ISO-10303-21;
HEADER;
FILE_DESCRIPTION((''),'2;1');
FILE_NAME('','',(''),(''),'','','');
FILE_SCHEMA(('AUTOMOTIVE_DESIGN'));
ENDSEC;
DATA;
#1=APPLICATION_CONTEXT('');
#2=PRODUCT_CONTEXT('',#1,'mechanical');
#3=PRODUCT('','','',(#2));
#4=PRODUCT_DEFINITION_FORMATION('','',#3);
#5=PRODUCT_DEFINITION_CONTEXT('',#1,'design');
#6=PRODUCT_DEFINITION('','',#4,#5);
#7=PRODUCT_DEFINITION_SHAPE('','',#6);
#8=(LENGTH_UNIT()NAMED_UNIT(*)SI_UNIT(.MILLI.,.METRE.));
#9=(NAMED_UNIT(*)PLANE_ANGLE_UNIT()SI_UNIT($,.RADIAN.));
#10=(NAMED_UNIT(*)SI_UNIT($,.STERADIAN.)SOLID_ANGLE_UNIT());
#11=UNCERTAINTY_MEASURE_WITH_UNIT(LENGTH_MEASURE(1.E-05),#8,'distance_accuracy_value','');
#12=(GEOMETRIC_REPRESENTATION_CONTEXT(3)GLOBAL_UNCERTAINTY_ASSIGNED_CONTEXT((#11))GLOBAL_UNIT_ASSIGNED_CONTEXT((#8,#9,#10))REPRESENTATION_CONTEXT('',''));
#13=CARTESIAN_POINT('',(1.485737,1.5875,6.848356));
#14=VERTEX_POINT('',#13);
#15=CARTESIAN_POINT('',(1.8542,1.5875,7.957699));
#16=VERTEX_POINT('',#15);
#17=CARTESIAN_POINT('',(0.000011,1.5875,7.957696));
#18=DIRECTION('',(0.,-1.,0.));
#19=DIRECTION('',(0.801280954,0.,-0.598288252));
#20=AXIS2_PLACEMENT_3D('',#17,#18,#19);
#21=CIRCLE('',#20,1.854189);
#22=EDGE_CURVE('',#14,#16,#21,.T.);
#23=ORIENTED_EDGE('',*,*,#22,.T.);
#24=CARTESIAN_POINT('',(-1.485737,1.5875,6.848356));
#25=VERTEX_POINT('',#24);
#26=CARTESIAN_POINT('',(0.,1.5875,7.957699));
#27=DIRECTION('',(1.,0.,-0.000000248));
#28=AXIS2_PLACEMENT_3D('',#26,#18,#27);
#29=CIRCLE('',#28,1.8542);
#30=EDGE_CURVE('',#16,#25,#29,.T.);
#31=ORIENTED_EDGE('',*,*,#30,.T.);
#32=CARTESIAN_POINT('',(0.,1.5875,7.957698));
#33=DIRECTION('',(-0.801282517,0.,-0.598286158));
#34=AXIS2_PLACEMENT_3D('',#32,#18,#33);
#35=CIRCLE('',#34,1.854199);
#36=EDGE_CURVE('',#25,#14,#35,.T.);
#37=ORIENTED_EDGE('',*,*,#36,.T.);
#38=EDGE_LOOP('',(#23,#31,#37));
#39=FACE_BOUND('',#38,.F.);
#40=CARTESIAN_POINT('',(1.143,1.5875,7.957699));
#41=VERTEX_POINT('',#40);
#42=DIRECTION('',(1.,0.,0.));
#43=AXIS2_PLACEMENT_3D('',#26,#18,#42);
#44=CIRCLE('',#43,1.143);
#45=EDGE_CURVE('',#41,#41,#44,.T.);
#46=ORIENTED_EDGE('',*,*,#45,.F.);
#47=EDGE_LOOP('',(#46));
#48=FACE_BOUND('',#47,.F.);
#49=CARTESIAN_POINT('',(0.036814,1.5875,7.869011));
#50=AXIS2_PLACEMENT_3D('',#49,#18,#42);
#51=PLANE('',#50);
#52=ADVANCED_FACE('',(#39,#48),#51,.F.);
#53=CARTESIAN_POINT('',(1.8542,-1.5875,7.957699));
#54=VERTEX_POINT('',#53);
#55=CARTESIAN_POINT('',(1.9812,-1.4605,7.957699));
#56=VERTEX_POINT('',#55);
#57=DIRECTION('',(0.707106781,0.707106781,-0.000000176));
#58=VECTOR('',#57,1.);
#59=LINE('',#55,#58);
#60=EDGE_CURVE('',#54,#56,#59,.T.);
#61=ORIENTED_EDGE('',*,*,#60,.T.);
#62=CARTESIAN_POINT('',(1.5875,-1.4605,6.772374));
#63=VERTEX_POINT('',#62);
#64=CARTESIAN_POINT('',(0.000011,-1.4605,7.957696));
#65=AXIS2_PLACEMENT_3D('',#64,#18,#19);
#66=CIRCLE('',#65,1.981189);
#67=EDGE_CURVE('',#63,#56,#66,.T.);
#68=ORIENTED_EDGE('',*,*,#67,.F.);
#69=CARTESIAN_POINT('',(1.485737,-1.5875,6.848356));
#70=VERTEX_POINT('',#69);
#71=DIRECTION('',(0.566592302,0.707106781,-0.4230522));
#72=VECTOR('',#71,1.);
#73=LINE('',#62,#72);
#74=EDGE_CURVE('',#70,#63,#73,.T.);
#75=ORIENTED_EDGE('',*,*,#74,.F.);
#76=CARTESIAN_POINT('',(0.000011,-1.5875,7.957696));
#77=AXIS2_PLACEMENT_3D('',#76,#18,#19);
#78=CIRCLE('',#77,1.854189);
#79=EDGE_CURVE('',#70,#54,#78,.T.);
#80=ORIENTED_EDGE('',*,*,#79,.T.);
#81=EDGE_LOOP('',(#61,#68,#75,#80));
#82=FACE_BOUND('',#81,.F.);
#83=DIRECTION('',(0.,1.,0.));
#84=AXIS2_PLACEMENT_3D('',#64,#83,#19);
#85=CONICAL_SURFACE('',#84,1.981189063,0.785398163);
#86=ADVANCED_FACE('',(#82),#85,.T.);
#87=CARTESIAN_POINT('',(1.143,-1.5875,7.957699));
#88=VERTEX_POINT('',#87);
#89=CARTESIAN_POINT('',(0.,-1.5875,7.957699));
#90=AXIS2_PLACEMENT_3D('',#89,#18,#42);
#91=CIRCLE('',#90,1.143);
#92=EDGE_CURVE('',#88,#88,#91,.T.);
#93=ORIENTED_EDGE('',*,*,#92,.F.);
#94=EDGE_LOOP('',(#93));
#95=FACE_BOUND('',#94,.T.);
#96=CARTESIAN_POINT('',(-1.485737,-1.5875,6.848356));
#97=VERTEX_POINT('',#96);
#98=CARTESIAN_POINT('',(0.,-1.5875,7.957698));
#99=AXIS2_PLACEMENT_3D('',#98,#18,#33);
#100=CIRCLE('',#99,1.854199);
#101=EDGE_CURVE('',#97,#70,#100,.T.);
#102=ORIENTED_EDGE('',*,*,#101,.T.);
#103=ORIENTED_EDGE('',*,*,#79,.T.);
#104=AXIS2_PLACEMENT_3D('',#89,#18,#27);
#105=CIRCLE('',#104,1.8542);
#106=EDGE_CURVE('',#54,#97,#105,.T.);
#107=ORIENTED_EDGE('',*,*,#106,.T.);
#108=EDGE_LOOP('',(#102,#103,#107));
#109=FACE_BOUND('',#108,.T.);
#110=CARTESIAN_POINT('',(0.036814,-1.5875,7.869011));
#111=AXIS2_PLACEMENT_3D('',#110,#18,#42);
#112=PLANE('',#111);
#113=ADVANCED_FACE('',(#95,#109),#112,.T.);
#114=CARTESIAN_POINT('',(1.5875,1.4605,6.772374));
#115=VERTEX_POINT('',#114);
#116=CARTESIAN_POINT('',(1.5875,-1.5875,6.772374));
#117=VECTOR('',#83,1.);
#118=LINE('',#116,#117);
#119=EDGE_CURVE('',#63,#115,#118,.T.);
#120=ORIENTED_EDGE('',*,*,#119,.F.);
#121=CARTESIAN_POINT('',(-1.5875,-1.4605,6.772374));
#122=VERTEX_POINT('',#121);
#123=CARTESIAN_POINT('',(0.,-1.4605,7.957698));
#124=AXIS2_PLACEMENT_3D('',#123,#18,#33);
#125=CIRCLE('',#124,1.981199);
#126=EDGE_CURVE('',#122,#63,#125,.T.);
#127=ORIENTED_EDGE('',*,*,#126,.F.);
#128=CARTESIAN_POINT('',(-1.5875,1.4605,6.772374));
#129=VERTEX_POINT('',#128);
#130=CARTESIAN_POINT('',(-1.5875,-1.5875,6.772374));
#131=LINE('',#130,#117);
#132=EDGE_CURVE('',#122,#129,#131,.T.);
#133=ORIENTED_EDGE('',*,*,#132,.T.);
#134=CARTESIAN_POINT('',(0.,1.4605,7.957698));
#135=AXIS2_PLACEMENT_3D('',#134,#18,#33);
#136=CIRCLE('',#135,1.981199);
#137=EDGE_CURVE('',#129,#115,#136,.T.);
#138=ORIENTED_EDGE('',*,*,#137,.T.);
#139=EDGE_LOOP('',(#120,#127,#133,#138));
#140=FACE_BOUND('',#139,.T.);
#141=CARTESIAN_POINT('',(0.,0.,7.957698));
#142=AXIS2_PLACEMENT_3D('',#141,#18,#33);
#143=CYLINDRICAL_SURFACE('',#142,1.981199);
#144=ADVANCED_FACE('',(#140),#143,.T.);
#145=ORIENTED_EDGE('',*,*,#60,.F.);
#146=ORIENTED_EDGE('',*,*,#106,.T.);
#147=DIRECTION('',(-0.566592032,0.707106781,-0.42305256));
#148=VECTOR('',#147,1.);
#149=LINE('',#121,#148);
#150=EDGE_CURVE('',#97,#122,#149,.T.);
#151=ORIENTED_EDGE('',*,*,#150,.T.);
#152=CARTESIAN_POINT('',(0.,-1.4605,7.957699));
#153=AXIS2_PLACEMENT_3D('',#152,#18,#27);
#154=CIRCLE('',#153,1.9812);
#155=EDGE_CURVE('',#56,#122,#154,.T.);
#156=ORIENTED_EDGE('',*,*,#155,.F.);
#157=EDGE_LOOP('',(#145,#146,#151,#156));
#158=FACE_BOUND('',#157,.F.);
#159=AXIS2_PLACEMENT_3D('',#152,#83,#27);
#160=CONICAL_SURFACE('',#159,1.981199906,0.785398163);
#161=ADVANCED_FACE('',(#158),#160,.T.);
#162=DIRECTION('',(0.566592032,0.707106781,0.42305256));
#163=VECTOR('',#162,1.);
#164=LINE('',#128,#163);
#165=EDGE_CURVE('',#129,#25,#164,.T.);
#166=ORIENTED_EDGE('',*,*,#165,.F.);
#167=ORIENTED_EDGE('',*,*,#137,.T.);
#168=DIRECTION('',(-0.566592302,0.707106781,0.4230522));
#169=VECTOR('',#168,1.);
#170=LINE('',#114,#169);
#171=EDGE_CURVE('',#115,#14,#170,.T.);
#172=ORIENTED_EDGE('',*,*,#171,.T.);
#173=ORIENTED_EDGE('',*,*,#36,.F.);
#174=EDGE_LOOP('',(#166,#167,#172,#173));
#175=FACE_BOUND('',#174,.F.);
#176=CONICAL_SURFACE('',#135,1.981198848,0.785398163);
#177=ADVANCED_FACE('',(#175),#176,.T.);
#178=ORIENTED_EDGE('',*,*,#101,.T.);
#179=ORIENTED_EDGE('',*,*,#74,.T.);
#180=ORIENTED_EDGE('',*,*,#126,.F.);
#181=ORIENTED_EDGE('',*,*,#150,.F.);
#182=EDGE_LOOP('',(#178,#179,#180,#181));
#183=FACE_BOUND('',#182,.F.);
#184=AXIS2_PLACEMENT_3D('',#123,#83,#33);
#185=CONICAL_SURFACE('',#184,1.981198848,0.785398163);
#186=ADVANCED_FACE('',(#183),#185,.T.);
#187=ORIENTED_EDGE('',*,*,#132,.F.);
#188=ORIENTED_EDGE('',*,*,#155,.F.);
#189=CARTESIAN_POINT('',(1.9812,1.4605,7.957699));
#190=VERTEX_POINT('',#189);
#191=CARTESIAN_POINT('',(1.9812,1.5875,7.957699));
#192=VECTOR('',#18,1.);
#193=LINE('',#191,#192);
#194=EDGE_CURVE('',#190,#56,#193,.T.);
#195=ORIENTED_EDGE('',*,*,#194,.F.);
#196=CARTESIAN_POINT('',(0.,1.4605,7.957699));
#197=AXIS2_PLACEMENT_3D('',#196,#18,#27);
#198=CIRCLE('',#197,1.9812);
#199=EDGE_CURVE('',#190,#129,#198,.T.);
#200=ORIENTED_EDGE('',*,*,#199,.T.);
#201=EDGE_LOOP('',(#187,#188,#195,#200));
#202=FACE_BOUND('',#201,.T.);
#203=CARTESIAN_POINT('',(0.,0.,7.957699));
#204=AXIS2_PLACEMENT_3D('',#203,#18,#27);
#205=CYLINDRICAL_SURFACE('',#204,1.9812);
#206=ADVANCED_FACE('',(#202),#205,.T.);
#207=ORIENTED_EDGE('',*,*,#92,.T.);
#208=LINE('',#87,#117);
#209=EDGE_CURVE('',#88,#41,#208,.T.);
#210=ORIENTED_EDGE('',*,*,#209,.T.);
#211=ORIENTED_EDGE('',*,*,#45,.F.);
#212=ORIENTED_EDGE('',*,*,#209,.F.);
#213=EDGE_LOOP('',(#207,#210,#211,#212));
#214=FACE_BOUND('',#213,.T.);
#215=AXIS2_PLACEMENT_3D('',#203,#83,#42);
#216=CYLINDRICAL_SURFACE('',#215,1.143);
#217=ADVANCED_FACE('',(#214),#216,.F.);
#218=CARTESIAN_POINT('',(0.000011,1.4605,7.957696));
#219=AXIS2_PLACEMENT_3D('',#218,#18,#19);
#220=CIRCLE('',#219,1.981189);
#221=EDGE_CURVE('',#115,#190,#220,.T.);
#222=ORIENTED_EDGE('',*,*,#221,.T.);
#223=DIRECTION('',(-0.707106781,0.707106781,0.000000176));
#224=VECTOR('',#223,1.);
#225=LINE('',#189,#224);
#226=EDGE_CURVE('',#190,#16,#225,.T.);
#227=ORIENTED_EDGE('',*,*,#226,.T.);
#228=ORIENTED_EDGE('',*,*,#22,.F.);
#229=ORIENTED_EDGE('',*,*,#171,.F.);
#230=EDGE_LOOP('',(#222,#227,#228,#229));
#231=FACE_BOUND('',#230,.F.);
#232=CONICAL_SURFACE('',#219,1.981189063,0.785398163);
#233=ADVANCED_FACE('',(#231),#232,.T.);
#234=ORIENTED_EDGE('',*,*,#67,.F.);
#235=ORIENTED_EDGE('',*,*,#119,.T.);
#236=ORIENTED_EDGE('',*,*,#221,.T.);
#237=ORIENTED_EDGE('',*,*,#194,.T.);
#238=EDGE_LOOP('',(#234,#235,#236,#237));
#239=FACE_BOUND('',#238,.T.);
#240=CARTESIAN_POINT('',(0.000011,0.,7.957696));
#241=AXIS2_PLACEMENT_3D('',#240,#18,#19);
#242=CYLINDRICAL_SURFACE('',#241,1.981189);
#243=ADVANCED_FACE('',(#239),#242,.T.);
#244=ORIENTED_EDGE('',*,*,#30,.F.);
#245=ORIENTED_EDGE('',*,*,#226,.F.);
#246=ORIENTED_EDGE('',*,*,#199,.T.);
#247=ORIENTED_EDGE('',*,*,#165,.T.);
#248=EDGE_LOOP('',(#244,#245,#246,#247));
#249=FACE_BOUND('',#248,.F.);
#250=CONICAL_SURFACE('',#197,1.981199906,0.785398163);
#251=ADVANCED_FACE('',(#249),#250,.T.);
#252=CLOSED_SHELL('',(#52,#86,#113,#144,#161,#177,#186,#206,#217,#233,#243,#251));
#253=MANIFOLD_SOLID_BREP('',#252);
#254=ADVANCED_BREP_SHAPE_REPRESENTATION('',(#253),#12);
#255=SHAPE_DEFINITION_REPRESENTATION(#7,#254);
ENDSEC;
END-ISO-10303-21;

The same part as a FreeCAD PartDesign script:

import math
import FreeCAD as App
import Part
import Sketcher

V = App.Vector
Q = App.Units.Quantity


def edges_at(feature, points):
    """Names of the edges that pass closest to the given points."""
    edges = feature.Shape.Edges
    near = lambda p: min(range(len(edges)), key=lambda i: edges[i].distToShape(Part.Vertex(*p))[0])
    return sorted({f"Edge{near(p) + 1}" for p in points})

doc = App.newDocument("Part")
params = doc.addObject("Spreadsheet::Sheet", "Params")
for row, (alias, value) in enumerate([
    ("sketch1_diameter", "0.09 in"),
    ("sketch1_radius", "0.078 in"),
    ("pad1_length", "0.125 in"),
    ("chamfer_size", "0.005 in"),
    ("chamfer_size2", "0.005 in"),
    ("chamfer2_size", "0.005 in"),
    ("chamfer2_size2", "0.005 in"),
], start=1):
    params.set(f"A{row}", alias)
    params.set(f"B{row}", "=" + value)
    params.setAlias(f"B{row}", alias)

body = doc.addObject("PartDesign::Body", "Body")

# Sketch on XZ plane
sketch1 = body.newObject("Sketcher::SketchObject", "Sketch")
sketch1.AttachmentSupport = (doc.getObject("XZ_Plane"), [""])
sketch1.MapMode = "FlatFace"
sketch1.addGeometry(Part.ArcOfCircle(Part.Circle(V(0, 8, 0), V(0, 0, 1), 2), math.radians(-37), math.radians(0)), False)
sketch1.addGeometry(Part.ArcOfCircle(Part.Circle(V(0, 8, 0), V(0, 0, 1), 2), math.radians(0), math.radians(217)), False)
sketch1.addGeometry(Part.ArcOfCircle(Part.Circle(V(0, 8, 0), V(0, 0, 1), 2), math.radians(-143), math.radians(-37)), False)
sketch1.addGeometry(Part.Circle(V(0, 8, 0), V(0, 0, 1), 1.1), False)
sketch1.addConstraint(Sketcher.Constraint("Tangent", 0, 2, 1, 1))
sketch1.addConstraint(Sketcher.Constraint("Tangent", 1, 2, 2, 1))
sketch1.addConstraint(Sketcher.Constraint("Coincident", 2, 2, 0, 1))
sketch1.addConstraint(Sketcher.Constraint("Coincident", 3, 3, 1, 3))
sketch1.addConstraint(Sketcher.Constraint("Equal", 1, 2))
sketch1.addConstraint(Sketcher.Constraint("Symmetric", 1, 2, 2, 2, -2))
sketch1.addConstraint(Sketcher.Constraint("Horizontal", 3, 3, 0, 2))
sketch1.addConstraint(Sketcher.Constraint("Diameter", 3, Q("0.09 in")))
sketch1.addConstraint(Sketcher.Constraint("Radius", 1, Q("0.078 in")))
sketch1.addConstraint(Sketcher.Constraint("DistanceX", 1, 2, -1, 1, Q("0.0625 in")))
sketch1.addConstraint(Sketcher.Constraint("DistanceY", -1, 1, 1, 3, 7.957699))
sketch1.setExpression("Constraints[7]", "Params.sketch1_diameter")
sketch1.setExpression("Constraints[8]", "Params.sketch1_radius")
pad1 = body.newObject("PartDesign::Pad", "Pad")
pad1.Profile = sketch1
pad1.setExpression("Length", "Params.pad1_length")
pad1.Midplane = True
doc.recompute()

chamfer = body.newObject("PartDesign::Chamfer", "Chamfer")
chamfer.Base = (pad1, edges_at(pad1, [(-0.624, -1.587, 9.838)]))
chamfer.ChamferType = "Two distances"
chamfer.setExpression("Size", "Params.chamfer_size")
chamfer.setExpression("Size2", "Params.chamfer_size2")
doc.recompute()

chamfer2 = body.newObject("PartDesign::Chamfer", "Chamfer001")
chamfer2.Base = (chamfer, edges_at(chamfer, [(-0.624, 1.587, 9.838)]))
chamfer2.ChamferType = "Two distances"
chamfer2.setExpression("Size", "Params.chamfer2_size")
chamfer2.setExpression("Size2", "Params.chamfer2_size2")

doc.recompute()
